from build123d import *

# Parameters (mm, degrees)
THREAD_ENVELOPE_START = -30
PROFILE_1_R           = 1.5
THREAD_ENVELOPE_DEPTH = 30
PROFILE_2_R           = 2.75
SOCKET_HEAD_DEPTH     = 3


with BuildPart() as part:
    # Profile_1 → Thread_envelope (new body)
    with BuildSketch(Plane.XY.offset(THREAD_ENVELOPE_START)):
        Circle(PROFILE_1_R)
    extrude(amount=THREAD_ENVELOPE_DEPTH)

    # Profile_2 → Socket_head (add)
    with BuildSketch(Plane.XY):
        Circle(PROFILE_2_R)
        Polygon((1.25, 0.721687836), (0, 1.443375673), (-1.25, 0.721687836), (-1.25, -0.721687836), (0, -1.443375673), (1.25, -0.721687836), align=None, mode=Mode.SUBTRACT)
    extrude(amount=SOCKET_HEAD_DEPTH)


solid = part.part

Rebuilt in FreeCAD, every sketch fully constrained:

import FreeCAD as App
import Part
import Sketcher
from FreeCAD import Vector
Q = App.Units.Quantity


def add_polygon(sketch, points):
    """Adds a closed chain of lines whose ends are joined by coincident constraints."""
    first, n = sketch.GeometryCount, len(points)
    for a, b in zip(points, points[1:] + points[:1]):
        sketch.addGeometry(Part.LineSegment(App.Vector(*a, 0), App.Vector(*b, 0)), False)
    for i in range(n):
        sketch.addConstraint(Sketcher.Constraint("Coincident", first + i, 2, first + (i + 1) % n, 1))

doc = App.newDocument("Part")
body = doc.addObject("PartDesign::Body", "Body")

# Sketch on XY plane
sketch1 = body.newObject("Sketcher::SketchObject", "Sketch")
sketch1.AttachmentSupport = (doc.getObject("XY_Plane"), [""])
sketch1.MapMode = "FlatFace"
sketch1.AttachmentOffset = App.Placement(Vector(0, 0, -30), App.Rotation())
sketch1.addGeometry(Part.Circle(Vector(0, 0, 0), Vector(0, 0, 1), 1.5), False)
sketch1.addConstraint([
    Sketcher.Constraint("Coincident", 0, 3, -1, 1),
    Sketcher.Constraint("Diameter", 0, Q("3 mm")),
])
pad1 = body.newObject("PartDesign::Pad", "Pad")
pad1.Profile = sketch1
pad1.Length = 30

# Sketch on XY plane
sketch2 = body.newObject("Sketcher::SketchObject", "Sketch001")
sketch2.AttachmentSupport = (doc.getObject("XY_Plane"), [""])
sketch2.MapMode = "FlatFace"
sketch2.addGeometry(Part.Circle(Vector(0, 0, 0), Vector(0, 0, 1), 2.8), False)  # 0
add_polygon(sketch2, [(0, 1.4), (1.2, 0.7), (1.2, -0.7), (0, -1.4), (-1.2, -0.7), (-1.2, 0.7)])  # lines 1-6
sketch2.addConstraint([
    Sketcher.Constraint("Vertical", 2),
    Sketcher.Constraint("Vertical", 5),
    Sketcher.Constraint("Coincident", 0, 3, -1, 1),
    Sketcher.Constraint("Symmetric", 1, 2, 4, 2, -1, 1),
    Sketcher.Constraint("Symmetric", 3, 2, 6, 2, -1, 1),
    Sketcher.Constraint("PointOnObject", 3, 2, -2),
    Sketcher.Constraint("Parallel", 3, 6),
    Sketcher.Constraint("Horizontal", 2, 2, 4, 2),
    Sketcher.Constraint("Diameter", 0, Q("5.5 mm")),
    Sketcher.Constraint("Angle", 1, Q("-30 deg")),
    Sketcher.Constraint("DistanceX", 4, 2, 2, 2, Q("2.5 mm")),
    Sketcher.Constraint("DistanceY", 2, 2, 2, 1, Q("1.443376 mm")),
])
pad2 = body.newObject("PartDesign::Pad", "Pad001")
pad2.Profile = sketch2
pad2.Length = 3

doc.recompute()
